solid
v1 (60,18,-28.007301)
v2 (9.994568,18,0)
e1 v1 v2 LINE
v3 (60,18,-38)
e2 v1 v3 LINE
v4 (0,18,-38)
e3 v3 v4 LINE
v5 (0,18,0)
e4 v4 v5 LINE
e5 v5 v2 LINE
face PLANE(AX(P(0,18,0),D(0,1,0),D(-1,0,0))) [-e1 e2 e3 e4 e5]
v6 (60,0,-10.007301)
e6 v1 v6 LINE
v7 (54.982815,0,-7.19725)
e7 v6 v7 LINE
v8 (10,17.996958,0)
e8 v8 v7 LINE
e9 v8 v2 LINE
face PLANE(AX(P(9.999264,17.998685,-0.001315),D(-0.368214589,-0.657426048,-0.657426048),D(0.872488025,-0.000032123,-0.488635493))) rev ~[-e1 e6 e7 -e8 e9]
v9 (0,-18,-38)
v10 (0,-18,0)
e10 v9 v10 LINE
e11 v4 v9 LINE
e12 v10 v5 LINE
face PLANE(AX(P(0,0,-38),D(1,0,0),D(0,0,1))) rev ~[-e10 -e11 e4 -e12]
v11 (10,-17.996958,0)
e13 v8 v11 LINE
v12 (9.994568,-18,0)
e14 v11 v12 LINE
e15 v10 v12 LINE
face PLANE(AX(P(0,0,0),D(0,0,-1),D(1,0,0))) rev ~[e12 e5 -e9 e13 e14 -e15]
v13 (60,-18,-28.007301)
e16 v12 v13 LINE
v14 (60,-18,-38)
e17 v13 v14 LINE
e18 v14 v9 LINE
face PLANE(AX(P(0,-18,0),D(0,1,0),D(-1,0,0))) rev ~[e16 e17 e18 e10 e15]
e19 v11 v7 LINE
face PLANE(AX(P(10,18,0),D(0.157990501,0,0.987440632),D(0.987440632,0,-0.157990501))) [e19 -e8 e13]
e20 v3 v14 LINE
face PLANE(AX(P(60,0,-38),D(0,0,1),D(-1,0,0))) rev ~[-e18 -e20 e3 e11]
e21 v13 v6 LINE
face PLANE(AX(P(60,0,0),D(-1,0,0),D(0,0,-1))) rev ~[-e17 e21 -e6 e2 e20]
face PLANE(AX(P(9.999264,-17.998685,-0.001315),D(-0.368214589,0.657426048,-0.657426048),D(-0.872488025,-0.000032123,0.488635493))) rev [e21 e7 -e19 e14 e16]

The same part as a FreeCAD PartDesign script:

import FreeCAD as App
import Part
import Sketcher
from FreeCAD import Vector

doc = App.newDocument("Part")
body = doc.addObject("PartDesign::Body", "Body")

# Sketch on XZ plane
sketch1 = body.newObject("Sketcher::SketchObject", "Sketch")
sketch1.AttachmentSupport = (doc.getObject("XZ_Plane"), [""])
sketch1.MapMode = "FlatFace"
sketch1.addGeometry(Part.LineSegment(Vector(0, -38, 0), Vector(0, 0, 0)), False)
sketch1.addGeometry(Part.LineSegment(Vector(0, 0, 0), Vector(60, 0, 0)), False)
sketch1.addGeometry(Part.LineSegment(Vector(60, 0, 0), Vector(60, -38, 0)), False)
sketch1.addGeometry(Part.LineSegment(Vector(60, -38, 0), Vector(0, -38, 0)), False)
sketch1.addConstraint(Sketcher.Constraint("Coincident", 0, 2, 1, 1))
sketch1.addConstraint(Sketcher.Constraint("Coincident", 1, 2, 2, 1))
sketch1.addConstraint(Sketcher.Constraint("Coincident", 2, 2, 3, 1))
sketch1.addConstraint(Sketcher.Constraint("Coincident", 3, 2, 0, 1))
sketch1.addConstraint(Sketcher.Constraint("Vertical", 0))
sketch1.addConstraint(Sketcher.Constraint("Horizontal", 1))
sketch1.addConstraint(Sketcher.Constraint("Vertical", 2))
sketch1.addConstraint(Sketcher.Constraint("Horizontal", 3))
sketch1.addConstraint(Sketcher.Constraint("Coincident", 0, 2, -1, 1))
sketch1.addConstraint(Sketcher.Constraint("DistanceX", 1, 1, 1, 2, 60.0))
sketch1.addConstraint(Sketcher.Constraint("DistanceY", 0, 1, 0, 2, 38.0))
pad1 = body.newObject("PartDesign::Pad", "Pad")
pad1.Profile = sketch1
pad1.Length = 36
pad1.Midplane = True

# Sketch on XZ plane
sketch2 = body.newObject("Sketcher::SketchObject", "Sketch001")
sketch2.AttachmentSupport = (doc.getObject("XZ_Plane"), [""])
sketch2.MapMode = "FlatFace"
sketch2.AttachmentOffset = App.Placement(Vector(0, 0, -18), App.Rotation())
sketch2.addGeometry(Part.LineSegment(Vector(60, -8, 0), Vector(10, 0, 0)), False)
sketch2.addGeometry(Part.LineSegment(Vector(10, 0, 0), Vector(60, 0, 0)), False)
sketch2.addGeometry(Part.LineSegment(Vector(60, 0, 0), Vector(60, -8, 0)), False)
sketch2.addConstraint(Sketcher.Constraint("Coincident", 0, 2, 1, 1))
sketch2.addConstraint(Sketcher.Constraint("Coincident", 1, 2, 2, 1))
sketch2.addConstraint(Sketcher.Constraint("Coincident", 2, 2, 0, 1))
sketch2.addConstraint(Sketcher.Constraint("Horizontal", 1))
sketch2.addConstraint(Sketcher.Constraint("Vertical", 2))
sketch2.addConstraint(Sketcher.Constraint("PointOnObject", 0, 2, -1))
sketch2.addConstraint(Sketcher.Constraint("DistanceX", -1, 1, 0, 2, 10.0))
sketch2.addConstraint(Sketcher.Constraint("DistanceX", 1, 1, 1, 2, 50.0))
sketch2.addConstraint(Sketcher.Constraint("DistanceY", 2, 2, 2, 1, 8.0))
pocket1 = body.newObject("PartDesign::Pocket", "Pocket")
pocket1.Profile = sketch2
pocket1.Length = 40
pocket1.Reversed = True

# Sketch on an angled plane
sketch3 = body.newObject("Sketcher::SketchObject", "Sketch002")
sketch3.Placement = App.Placement(Vector(10, 18, 0), App.Rotation(Vector(0.872488025, -0.000032123, -0.488635493), Vector(0.321220583, -0.753519071, 0.573608182), Vector(-0.368214589, -0.657426048, -0.657426048), "ZXY"))
sketch3.addGeometry(Part.LineSegment(Vector(-15, 29, 0), Vector(-15, -12, 0)), False)
sketch3.addGeometry(Part.LineSegment(Vector(-15, -12, 0), Vector(94, -12, 0)), False)
sketch3.addGeometry(Part.LineSegment(Vector(94, -12, 0), Vector(94, 29, 0)), False)
sketch3.addGeometry(Part.LineSegment(Vector(94, 29, 0), Vector(-15, 29, 0)), False)
sketch3.addConstraint(Sketcher.Constraint("Coincident", 0, 2, 1, 1))
sketch3.addConstraint(Sketcher.Constraint("Coincident", 1, 2, 2, 1))
sketch3.addConstraint(Sketcher.Constraint("Coincident", 2, 2, 3, 1))
sketch3.addConstraint(Sketcher.Constraint("Coincident", 3, 2, 0, 1))
sketch3.addConstraint(Sketcher.Constraint("Vertical", 0))
sketch3.addConstraint(Sketcher.Constraint("Horizontal", 1))
sketch3.addConstraint(Sketcher.Constraint("Vertical", 2))
sketch3.addConstraint(Sketcher.Constraint("Horizontal", 3))
sketch3.addConstraint(Sketcher.Constraint("DistanceX", 1, 1, 1, 2, 108.8713))
sketch3.addConstraint(Sketcher.Constraint("DistanceY", 0, 2, 0, 1, 41.1384))
sketch3.addConstraint(Sketcher.Constraint("DistanceX", -1, 1, 1, 2, 93.717))
sketch3.addConstraint(Sketcher.Constraint("DistanceY", 0, 2, -1, 1, 12.3218))
pocket2 = body.newObject("PartDesign::Pocket", "Pocket001")
pocket2.Profile = sketch3
pocket2.Length = 40
doc.recompute()

mirrored = body.newObject("PartDesign::Mirrored", "Mirrored")
mirrored.Originals = [pocket2]
mirrored.MirrorPlane = (doc.getObject("XZ_Plane"), [""])
body.Tip = mirrored

doc.recompute()
